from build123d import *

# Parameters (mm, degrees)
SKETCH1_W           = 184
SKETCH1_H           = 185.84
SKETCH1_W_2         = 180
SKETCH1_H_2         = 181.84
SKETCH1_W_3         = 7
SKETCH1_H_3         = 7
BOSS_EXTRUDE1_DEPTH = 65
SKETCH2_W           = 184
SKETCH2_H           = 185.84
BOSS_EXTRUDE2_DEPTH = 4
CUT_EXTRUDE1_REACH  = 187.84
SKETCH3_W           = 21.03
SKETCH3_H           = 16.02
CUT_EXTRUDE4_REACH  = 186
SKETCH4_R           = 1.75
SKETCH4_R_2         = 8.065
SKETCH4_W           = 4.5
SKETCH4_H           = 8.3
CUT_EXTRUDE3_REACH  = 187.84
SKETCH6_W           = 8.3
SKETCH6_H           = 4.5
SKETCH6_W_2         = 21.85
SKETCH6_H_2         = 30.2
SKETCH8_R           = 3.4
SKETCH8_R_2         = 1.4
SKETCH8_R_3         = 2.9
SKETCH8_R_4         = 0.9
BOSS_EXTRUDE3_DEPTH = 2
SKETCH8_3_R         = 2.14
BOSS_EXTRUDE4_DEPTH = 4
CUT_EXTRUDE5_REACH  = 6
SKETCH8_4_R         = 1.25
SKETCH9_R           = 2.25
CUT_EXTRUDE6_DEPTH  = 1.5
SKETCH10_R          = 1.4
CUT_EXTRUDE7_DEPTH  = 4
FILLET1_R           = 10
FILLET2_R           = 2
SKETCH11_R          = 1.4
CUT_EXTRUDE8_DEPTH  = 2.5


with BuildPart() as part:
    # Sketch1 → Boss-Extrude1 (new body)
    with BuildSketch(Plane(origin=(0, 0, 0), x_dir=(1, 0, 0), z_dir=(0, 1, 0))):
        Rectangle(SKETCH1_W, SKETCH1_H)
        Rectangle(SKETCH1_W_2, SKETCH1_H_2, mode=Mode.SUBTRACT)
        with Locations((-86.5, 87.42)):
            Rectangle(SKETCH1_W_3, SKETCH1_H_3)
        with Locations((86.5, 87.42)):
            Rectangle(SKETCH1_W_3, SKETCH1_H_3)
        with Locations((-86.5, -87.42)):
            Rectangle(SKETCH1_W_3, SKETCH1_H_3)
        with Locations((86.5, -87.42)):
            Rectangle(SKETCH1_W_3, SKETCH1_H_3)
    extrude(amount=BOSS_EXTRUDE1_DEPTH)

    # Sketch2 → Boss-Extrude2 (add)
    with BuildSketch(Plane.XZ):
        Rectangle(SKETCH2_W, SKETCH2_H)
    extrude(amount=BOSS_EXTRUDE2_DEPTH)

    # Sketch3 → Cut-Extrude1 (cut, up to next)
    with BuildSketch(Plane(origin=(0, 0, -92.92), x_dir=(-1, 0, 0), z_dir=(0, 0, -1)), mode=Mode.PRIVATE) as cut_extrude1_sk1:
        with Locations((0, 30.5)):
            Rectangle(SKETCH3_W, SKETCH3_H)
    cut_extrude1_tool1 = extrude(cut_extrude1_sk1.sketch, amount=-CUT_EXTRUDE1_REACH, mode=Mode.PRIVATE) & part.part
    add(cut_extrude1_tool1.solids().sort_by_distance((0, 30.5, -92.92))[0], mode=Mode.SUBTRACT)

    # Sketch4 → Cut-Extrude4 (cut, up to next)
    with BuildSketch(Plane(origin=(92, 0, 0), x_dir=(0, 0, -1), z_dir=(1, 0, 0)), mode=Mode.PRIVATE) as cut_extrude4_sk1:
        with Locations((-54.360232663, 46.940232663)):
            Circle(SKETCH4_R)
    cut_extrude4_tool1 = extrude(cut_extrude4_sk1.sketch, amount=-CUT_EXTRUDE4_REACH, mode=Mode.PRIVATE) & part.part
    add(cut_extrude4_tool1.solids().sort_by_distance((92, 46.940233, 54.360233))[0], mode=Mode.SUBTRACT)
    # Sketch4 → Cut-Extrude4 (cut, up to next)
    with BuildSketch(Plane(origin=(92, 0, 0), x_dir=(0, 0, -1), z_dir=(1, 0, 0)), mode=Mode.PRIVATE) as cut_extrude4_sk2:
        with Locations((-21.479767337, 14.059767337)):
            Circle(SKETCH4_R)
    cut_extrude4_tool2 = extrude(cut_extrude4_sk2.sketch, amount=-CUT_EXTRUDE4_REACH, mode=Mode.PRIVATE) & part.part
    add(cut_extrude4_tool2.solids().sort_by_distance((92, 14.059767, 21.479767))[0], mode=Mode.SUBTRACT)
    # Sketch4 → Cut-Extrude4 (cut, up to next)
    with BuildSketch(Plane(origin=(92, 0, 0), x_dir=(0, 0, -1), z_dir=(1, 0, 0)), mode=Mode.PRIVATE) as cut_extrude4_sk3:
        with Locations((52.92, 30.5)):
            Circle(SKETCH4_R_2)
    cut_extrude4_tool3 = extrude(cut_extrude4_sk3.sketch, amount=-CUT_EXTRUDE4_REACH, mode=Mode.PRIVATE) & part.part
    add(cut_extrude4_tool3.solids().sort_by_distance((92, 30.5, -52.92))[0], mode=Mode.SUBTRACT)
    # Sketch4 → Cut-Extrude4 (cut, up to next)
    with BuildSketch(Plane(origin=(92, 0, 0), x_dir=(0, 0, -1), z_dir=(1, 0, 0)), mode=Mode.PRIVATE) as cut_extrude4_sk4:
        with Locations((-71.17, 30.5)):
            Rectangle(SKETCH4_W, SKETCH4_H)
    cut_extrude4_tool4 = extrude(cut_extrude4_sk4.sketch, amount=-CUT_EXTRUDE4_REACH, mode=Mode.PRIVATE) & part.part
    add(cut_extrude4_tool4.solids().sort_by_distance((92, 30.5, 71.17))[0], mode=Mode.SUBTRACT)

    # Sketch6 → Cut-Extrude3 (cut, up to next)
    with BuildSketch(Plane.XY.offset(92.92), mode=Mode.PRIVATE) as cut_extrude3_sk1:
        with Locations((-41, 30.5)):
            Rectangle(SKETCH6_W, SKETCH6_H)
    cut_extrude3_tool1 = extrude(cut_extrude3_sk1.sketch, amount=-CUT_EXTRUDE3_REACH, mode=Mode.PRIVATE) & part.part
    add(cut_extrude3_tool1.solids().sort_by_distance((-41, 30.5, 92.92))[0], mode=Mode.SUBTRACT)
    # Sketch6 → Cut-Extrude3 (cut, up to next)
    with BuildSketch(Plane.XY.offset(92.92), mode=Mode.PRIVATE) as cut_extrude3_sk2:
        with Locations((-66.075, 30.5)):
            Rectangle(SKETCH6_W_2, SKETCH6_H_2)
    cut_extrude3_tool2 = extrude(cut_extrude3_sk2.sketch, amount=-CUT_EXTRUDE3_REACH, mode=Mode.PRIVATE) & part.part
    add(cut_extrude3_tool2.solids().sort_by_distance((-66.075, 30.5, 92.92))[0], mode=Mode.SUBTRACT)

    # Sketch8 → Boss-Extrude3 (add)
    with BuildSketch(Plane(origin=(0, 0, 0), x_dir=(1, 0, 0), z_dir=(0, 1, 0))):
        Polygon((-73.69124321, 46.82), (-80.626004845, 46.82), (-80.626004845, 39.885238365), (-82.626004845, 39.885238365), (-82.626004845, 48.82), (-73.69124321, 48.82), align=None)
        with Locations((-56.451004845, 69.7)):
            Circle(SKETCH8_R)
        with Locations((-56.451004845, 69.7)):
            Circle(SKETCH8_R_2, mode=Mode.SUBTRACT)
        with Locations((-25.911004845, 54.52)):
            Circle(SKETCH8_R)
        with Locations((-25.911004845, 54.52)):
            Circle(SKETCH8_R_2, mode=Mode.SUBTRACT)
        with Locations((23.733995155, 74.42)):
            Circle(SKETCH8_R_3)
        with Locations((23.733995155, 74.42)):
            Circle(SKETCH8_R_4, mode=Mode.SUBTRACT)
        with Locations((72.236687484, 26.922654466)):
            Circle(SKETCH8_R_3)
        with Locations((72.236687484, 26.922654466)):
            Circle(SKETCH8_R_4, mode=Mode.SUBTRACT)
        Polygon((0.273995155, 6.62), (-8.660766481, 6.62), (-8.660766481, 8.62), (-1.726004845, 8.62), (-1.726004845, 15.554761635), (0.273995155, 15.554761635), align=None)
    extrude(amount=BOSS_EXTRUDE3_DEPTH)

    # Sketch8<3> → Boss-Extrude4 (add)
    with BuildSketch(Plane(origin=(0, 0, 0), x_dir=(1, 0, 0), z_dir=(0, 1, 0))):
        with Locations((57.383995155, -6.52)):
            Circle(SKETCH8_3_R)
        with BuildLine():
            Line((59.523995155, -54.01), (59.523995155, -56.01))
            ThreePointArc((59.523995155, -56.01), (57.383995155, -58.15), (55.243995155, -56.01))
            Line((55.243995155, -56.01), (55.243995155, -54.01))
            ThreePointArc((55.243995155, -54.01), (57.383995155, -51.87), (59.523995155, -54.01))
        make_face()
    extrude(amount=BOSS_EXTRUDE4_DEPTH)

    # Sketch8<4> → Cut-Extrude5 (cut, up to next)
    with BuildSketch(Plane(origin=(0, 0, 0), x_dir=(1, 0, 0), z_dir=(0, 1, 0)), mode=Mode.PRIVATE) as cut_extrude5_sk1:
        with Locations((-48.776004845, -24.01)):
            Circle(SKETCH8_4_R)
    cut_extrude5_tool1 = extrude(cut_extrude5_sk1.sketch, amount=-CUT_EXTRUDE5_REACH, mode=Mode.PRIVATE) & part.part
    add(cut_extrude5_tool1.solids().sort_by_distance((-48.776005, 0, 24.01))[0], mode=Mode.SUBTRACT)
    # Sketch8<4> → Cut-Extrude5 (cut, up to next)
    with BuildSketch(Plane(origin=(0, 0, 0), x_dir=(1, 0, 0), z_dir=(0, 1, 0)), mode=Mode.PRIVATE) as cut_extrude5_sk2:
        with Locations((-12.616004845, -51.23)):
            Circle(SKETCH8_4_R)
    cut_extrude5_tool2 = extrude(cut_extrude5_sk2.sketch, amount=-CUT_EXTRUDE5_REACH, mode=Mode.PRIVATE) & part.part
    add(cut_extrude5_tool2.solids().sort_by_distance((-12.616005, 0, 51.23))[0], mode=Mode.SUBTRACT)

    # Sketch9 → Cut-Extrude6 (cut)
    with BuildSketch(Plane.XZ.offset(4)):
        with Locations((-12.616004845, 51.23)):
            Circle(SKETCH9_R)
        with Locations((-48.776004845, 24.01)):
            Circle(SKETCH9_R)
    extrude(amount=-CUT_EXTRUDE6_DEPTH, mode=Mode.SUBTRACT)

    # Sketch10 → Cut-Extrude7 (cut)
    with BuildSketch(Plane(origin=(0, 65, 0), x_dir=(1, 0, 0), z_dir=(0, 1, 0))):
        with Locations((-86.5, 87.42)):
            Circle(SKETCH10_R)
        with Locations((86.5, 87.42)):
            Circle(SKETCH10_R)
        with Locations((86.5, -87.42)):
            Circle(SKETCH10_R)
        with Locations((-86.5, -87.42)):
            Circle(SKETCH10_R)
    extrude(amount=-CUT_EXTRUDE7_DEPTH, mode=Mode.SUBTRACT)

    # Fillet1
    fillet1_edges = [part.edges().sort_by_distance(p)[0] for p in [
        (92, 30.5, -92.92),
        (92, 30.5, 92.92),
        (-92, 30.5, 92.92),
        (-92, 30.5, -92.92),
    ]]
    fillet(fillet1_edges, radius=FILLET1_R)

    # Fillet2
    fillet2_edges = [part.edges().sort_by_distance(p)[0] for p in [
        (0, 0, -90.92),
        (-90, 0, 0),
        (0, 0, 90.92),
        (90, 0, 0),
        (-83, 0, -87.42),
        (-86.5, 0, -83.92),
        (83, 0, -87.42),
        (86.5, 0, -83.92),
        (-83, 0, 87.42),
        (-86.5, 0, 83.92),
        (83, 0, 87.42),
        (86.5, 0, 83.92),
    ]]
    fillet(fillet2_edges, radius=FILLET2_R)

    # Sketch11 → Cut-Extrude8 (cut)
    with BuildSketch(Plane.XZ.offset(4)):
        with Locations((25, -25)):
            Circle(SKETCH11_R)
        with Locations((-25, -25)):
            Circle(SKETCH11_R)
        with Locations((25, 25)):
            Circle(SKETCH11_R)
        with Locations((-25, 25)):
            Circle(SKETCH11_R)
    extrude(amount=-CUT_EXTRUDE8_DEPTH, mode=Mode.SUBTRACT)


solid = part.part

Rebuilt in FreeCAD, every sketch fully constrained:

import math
import FreeCAD as App
import Part
import Sketcher

V = App.Vector


def edges_at(feature, points):
    """Names of the edges that pass closest to the given points."""
    edges = feature.Shape.Edges
    near = lambda p: min(range(len(edges)), key=lambda i: edges[i].distToShape(Part.Vertex(*p))[0])
    return sorted({f"Edge{near(p) + 1}" for p in points})


def add_polygon(sketch, points):
    """Adds a closed chain of lines whose ends are joined by coincident constraints."""
    first, n = sketch.GeometryCount, len(points)
    for a, b in zip(points, points[1:] + points[:1]):
        sketch.addGeometry(Part.LineSegment(App.Vector(*a, 0), App.Vector(*b, 0)), False)
    for i in range(n):
        sketch.addConstraint(Sketcher.Constraint("Coincident", first + i, 2, first + (i + 1) % n, 1))

doc = App.newDocument("Part")
body = doc.addObject("PartDesign::Body", "Body")

sketch1 = doc.addObject("Sketcher::SketchObject", "Sketch")
body.addObject(sketch1)
sketch1.AttachmentSupport = (doc.XZ_Plane, [""])
sketch1.MapMode = "FlatFace"
add_polygon(sketch1, [(-92, -93), (-92, 93), (92, 93), (92, -93)])
add_polygon(sketch1, [(83, 91), (-83, 91), (-83, 84), (-90, 84), (-90, -84), (-83, -84), (-83, -91), (83, -91), (83, -84), (90, -84), (90, 84), (83, 84)])
sketch1.addConstraint(Sketcher.Constraint("Vertical", 0))
sketch1.addConstraint(Sketcher.Constraint("Horizontal", 1))
sketch1.addConstraint(Sketcher.Constraint("Vertical", 2))
sketch1.addConstraint(Sketcher.Constraint("Horizontal", 3))
sketch1.addConstraint(Sketcher.Constraint("Horizontal", 4))
sketch1.addConstraint(Sketcher.Constraint("Vertical", 5))
sketch1.addConstraint(Sketcher.Constraint("Horizontal", 6))
sketch1.addConstraint(Sketcher.Constraint("Vertical", 7))
sketch1.addConstraint(Sketcher.Constraint("Horizontal", 8))
sketch1.addConstraint(Sketcher.Constraint("Vertical", 9))
sketch1.addConstraint(Sketcher.Constraint("Horizontal", 10))
sketch1.addConstraint(Sketcher.Constraint("Vertical", 11))
sketch1.addConstraint(Sketcher.Constraint("Horizontal", 12))
sketch1.addConstraint(Sketcher.Constraint("Vertical", 13))
sketch1.addConstraint(Sketcher.Constraint("Horizontal", 14))
sketch1.addConstraint(Sketcher.Constraint("Vertical", 15))
sketch1.addConstraint(Sketcher.Constraint("Symmetric", 0, 2, 2, 2, -1, 1))
sketch1.addConstraint(Sketcher.Constraint("Symmetric", 4, 2, 10, 2, -1, 1))
sketch1.addConstraint(Sketcher.Constraint("Symmetric", 6, 2, 12, 2, -1, 1))
sketch1.addConstraint(Sketcher.Constraint("Symmetric", 8, 2, 14, 2, -1, 1))
sketch1.addConstraint(Sketcher.Constraint("Symmetric", 8, 2, 11, 2, -2))
sketch1.addConstraint(Sketcher.Constraint("Equal", 14, 5))
sketch1.addConstraint(Sketcher.Constraint("DistanceX", 1, 1, 1, 2, 184.0))
sketch1.addConstraint(Sketcher.Constraint("DistanceX", 4, 2, 4, 1, 166.0))
sketch1.addConstraint(Sketcher.Constraint("DistanceX", 6, 2, 6, 1, 7.0))
sketch1.addConstraint(Sketcher.Constraint("DistanceY", 4, 2, 0, 2, 2.0))
sketch1.addConstraint(Sketcher.Constraint("DistanceY", 0, 1, 0, 2, 185.84))
pad1 = doc.addObject("PartDesign::Pad", "Pad")
body.addObject(pad1)
pad1.Profile = sketch1
pad1.Length = 65
pad1.Reversed = True

sketch2 = doc.addObject("Sketcher::SketchObject", "Sketch001")
body.addObject(sketch2)
sketch2.AttachmentSupport = (doc.XZ_Plane, [""])
sketch2.MapMode = "FlatFace"
add_polygon(sketch2, [(-92, 93), (-92, -93), (92, -93), (92, 93)])
sketch2.addConstraint(Sketcher.Constraint("Vertical", 0))
sketch2.addConstraint(Sketcher.Constraint("Horizontal", 1))
sketch2.addConstraint(Sketcher.Constraint("Vertical", 2))
sketch2.addConstraint(Sketcher.Constraint("Horizontal", 3))
sketch2.addConstraint(Sketcher.Constraint("Symmetric", 0, 2, 2, 2, -1, 1))
sketch2.addConstraint(Sketcher.Constraint("DistanceX", 1, 1, 1, 2, 184.0))
sketch2.addConstraint(Sketcher.Constraint("DistanceY", 0, 2, 0, 1, 185.84))
pad2 = doc.addObject("PartDesign::Pad", "Pad001")
body.addObject(pad2)
pad2.Profile = sketch2
pad2.Length = 4

sketch3 = doc.addObject("Sketcher::SketchObject", "Sketch002")
body.addObject(sketch3)
sketch3.AttachmentSupport = (doc.XY_Plane, [""])
sketch3.MapMode = "FlatFace"
sketch3.AttachmentOffset = App.Placement(V(0, 0, -92.92), App.Rotation())
add_polygon(sketch3, [(11, 39), (11, 22), (-11, 22), (-11, 39)])
sketch3.addConstraint(Sketcher.Constraint("Vertical", 0))
sketch3.addConstraint(Sketcher.Constraint("Horizontal", 1))
sketch3.addConstraint(Sketcher.Constraint("Vertical", 2))
sketch3.addConstraint(Sketcher.Constraint("Horizontal", 3))
sketch3.addConstraint(Sketcher.Constraint("DistanceX", 1, 2, 1, 1, 21.03))
sketch3.addConstraint(Sketcher.Constraint("DistanceY", 0, 2, 0, 1, 16.02))
sketch3.addConstraint(Sketcher.Constraint("DistanceY", -1, 1, 0, 2, 22.49))
sketch3.addConstraint(Sketcher.Constraint("DistanceX", -1, 1, 0, 2, 10.515))
pocket1 = doc.addObject("PartDesign::Pocket", "Pocket")
body.addObject(pocket1)
pocket1.Profile = sketch3
pocket1.Type = "UpToFirst"
pocket1.Reversed = True

sketch4 = doc.addObject("Sketcher::SketchObject", "Sketch003")
body.addObject(sketch4)
sketch4.AttachmentSupport = (doc.YZ_Plane, [""])
sketch4.MapMode = "FlatFace"
sketch4.AttachmentOffset = App.Placement(V(0, 0, 92), App.Rotation())
sketch4.addGeometry(Part.Circle(V(46.9, 54.4, 0), V(0, 0, 1), 1.8), False)
sketch4.addConstraint(Sketcher.Constraint("Diameter", 0, 3.5))
sketch4.addConstraint(Sketcher.Constraint("DistanceX", -1, 1, 0, 3, 46.940233))
sketch4.addConstraint(Sketcher.Constraint("DistanceY", -1, 1, 0, 3, 54.360233))
pocket2 = doc.addObject("PartDesign::Pocket", "Pocket001")
body.addObject(pocket2)
pocket2.Profile = sketch4
pocket2.Type = "UpToFirst"

sketch5 = doc.addObject("Sketcher::SketchObject", "Sketch004")
body.addObject(sketch5)
sketch5.AttachmentSupport = (doc.YZ_Plane, [""])
sketch5.MapMode = "FlatFace"
sketch5.AttachmentOffset = App.Placement(V(0, 0, 92), App.Rotation())
sketch5.addGeometry(Part.Circle(V(14.1, 21.5, 0), V(0, 0, 1), 1.8), False)
sketch5.addConstraint(Sketcher.Constraint("Diameter", 0, 3.5))
sketch5.addConstraint(Sketcher.Constraint("DistanceX", -1, 1, 0, 3, 14.059767))
sketch5.addConstraint(Sketcher.Constraint("DistanceY", -1, 1, 0, 3, 21.479767))
pocket3 = doc.addObject("PartDesign::Pocket", "Pocket002")
body.addObject(pocket3)
pocket3.Profile = sketch5
pocket3.Type = "UpToFirst"

sketch6 = doc.addObject("Sketcher::SketchObject", "Sketch005")
body.addObject(sketch6)
sketch6.AttachmentSupport = (doc.YZ_Plane, [""])
sketch6.MapMode = "FlatFace"
sketch6.AttachmentOffset = App.Placement(V(0, 0, 92), App.Rotation())
sketch6.addGeometry(Part.Circle(V(30, -53, 0), V(0, 0, 1), 8), False)
sketch6.addConstraint(Sketcher.Constraint("Diameter", 0, 16.13))
sketch6.addConstraint(Sketcher.Constraint("DistanceX", -1, 1, 0, 3, 30.5))
sketch6.addConstraint(Sketcher.Constraint("DistanceY", 0, 3, -1, 1, 52.92))
pocket4 = doc.addObject("PartDesign::Pocket", "Pocket003")
body.addObject(pocket4)
pocket4.Profile = sketch6
pocket4.Type = "UpToFirst"

sketch7 = doc.addObject("Sketcher::SketchObject", "Sketch006")
body.addObject(sketch7)
sketch7.AttachmentSupport = (doc.YZ_Plane, [""])
sketch7.MapMode = "FlatFace"
sketch7.AttachmentOffset = App.Placement(V(0, 0, 92), App.Rotation())
add_polygon(sketch7, [(34.6, 73.4), (26.4, 73.4), (26.4, 68.9), (34.6, 68.9)])
sketch7.addConstraint(Sketcher.Constraint("Horizontal", 0))
sketch7.addConstraint(Sketcher.Constraint("Vertical", 1))
sketch7.addConstraint(Sketcher.Constraint("Horizontal", 2))
sketch7.addConstraint(Sketcher.Constraint("Vertical", 3))
sketch7.addConstraint(Sketcher.Constraint("DistanceX", 0, 2, 0, 1, 8.3))
sketch7.addConstraint(Sketcher.Constraint("DistanceY", 1, 2, 1, 1, 4.5))
sketch7.addConstraint(Sketcher.Constraint("DistanceX", -1, 1, 0, 2, 26.35))
sketch7.addConstraint(Sketcher.Constraint("DistanceY", -1, 1, 0, 2, 73.42))
pocket5 = doc.addObject("PartDesign::Pocket", "Pocket004")
body.addObject(pocket5)
pocket5.Profile = sketch7
pocket5.Type = "UpToFirst"

sketch8 = doc.addObject("Sketcher::SketchObject", "Sketch007")
body.addObject(sketch8)
sketch8.AttachmentSupport = (doc.XY_Plane, [""])
sketch8.MapMode = "FlatFace"
sketch8.AttachmentOffset = App.Placement(V(0, 0, 92.92), App.Rotation())
add_polygon(sketch8, [(-45.1, 32.8), (-45.1, 28.2), (-36.9, 28.2), (-36.9, 32.8)])
sketch8.addConstraint(Sketcher.Constraint("Vertical", 0))
sketch8.addConstraint(Sketcher.Constraint("Horizontal", 1))
sketch8.addConstraint(Sketcher.Constraint("Vertical", 2))
sketch8.addConstraint(Sketcher.Constraint("Horizontal", 3))
sketch8.addConstraint(Sketcher.Constraint("DistanceX", 1, 1, 1, 2, 8.3))
sketch8.addConstraint(Sketcher.Constraint("DistanceY", 0, 2, 0, 1, 4.5))
sketch8.addConstraint(Sketcher.Constraint("DistanceX", 0, 2, -1, 1, 45.15))
sketch8.addConstraint(Sketcher.Constraint("DistanceY", -1, 1, 0, 2, 28.25))
pocket6 = doc.addObject("PartDesign::Pocket", "Pocket005")
body.addObject(pocket6)
pocket6.Profile = sketch8
pocket6.Type = "UpToFirst"

sketch9 = doc.addObject("Sketcher::SketchObject", "Sketch008")
body.addObject(sketch9)
sketch9.AttachmentSupport = (doc.XY_Plane, [""])
sketch9.MapMode = "FlatFace"
sketch9.AttachmentOffset = App.Placement(V(0, 0, 92.92), App.Rotation())
add_polygon(sketch9, [(-77, 46), (-77, 15), (-55, 15), (-55, 46)])
sketch9.addConstraint(Sketcher.Constraint("Vertical", 0))
sketch9.addConstraint(Sketcher.Constraint("Horizontal", 1))
sketch9.addConstraint(Sketcher.Constraint("Vertical", 2))
sketch9.addConstraint(Sketcher.Constraint("Horizontal", 3))
sketch9.addConstraint(Sketcher.Constraint("DistanceY", 0, 2, 0, 1, 30.2))
sketch9.addConstraint(Sketcher.Constraint("DistanceX", 0, 2, -1, 1, 77.0))
sketch9.addConstraint(Sketcher.Constraint("DistanceX", 1, 1, 1, 2, 21.85))
sketch9.addConstraint(Sketcher.Constraint("DistanceY", -1, 1, 0, 2, 15.4))
pocket7 = doc.addObject("PartDesign::Pocket", "Pocket006")
body.addObject(pocket7)
pocket7.Profile = sketch9
pocket7.Type = "UpToFirst"

sketch10 = doc.addObject("Sketcher::SketchObject", "Sketch009")
body.addObject(sketch10)
sketch10.AttachmentSupport = (doc.XZ_Plane, [""])
sketch10.MapMode = "FlatFace"
add_polygon(sketch10, [(-80.6, -46.8), (-73.7, -46.8), (-73.7, -48.8), (-82.6, -48.8), (-82.6, -39.9), (-80.6, -39.9)])
sketch10.addGeometry(Part.Circle(V(-56.5, -69.7, 0), V(0, 0, 1), 3.4), False)
sketch10.addGeometry(Part.Circle(V(-56.5, -69.7, 0), V(0, 0, 1), 1.4), False)
sketch10.addGeometry(Part.Circle(V(-25.9, -54.5, 0), V(0, 0, 1), 3.4), False)
sketch10.addGeometry(Part.Circle(V(-25.9, -54.5, 0), V(0, 0, 1), 1.4), False)
sketch10.addGeometry(Part.Circle(V(23.7, -74.4, 0), V(0, 0, 1), 2.9), False)
sketch10.addGeometry(Part.Circle(V(23.7, -74.4, 0), V(0, 0, 1), 0.9), False)
sketch10.addGeometry(Part.Circle(V(72.2, -26.9, 0), V(0, 0, 1), 2.9), False)
sketch10.addGeometry(Part.Circle(V(72.2, -26.9, 0), V(0, 0, 1), 0.9), False)
add_polygon(sketch10, [(-8.7, -6.6), (0.3, -6.6), (0.3, -15.6), (-1.7, -15.6), (-1.7, -8.6), (-8.7, -8.6)])
sketch10.addConstraint(Sketcher.Constraint("Horizontal", 0))
sketch10.addConstraint(Sketcher.Constraint("Vertical", 1))
sketch10.addConstraint(Sketcher.Constraint("Horizontal", 2))
sketch10.addConstraint(Sketcher.Constraint("Vertical", 3))
sketch10.addConstraint(Sketcher.Constraint("Horizontal", 4))
sketch10.addConstraint(Sketcher.Constraint("Vertical", 5))
sketch10.addConstraint(Sketcher.Constraint("Horizontal", 14))
sketch10.addConstraint(Sketcher.Constraint("Vertical", 15))
sketch10.addConstraint(Sketcher.Constraint("Horizontal", 16))
sketch10.addConstraint(Sketcher.Constraint("Vertical", 17))
sketch10.addConstraint(Sketcher.Constraint("Horizontal", 18))
sketch10.addConstraint(Sketcher.Constraint("Vertical", 19))
sketch10.addConstraint(Sketcher.Constraint("Coincident", 7, 3, 6, 3))
sketch10.addConstraint(Sketcher.Constraint("Coincident", 9, 3, 8, 3))
sketch10.addConstraint(Sketcher.Constraint("Coincident", 11, 3, 10, 3))
sketch10.addConstraint(Sketcher.Constraint("Coincident", 13, 3, 12, 3))
sketch10.addConstraint(Sketcher.Constraint("Equal", 6, 8))
sketch10.addConstraint(Sketcher.Constraint("Equal", 7, 9))
sketch10.addConstraint(Sketcher.Constraint("Equal", 10, 12))
sketch10.addConstraint(Sketcher.Constraint("Equal", 11, 13))
sketch10.addConstraint(Sketcher.Constraint("Equal", 2, 14))
sketch10.addConstraint(Sketcher.Constraint("Equal", 4, 16))
sketch10.addConstraint(Sketcher.Constraint("Equal", 16, 1))
sketch10.addConstraint(Sketcher.Constraint("Equal", 14, 3))
sketch10.addConstraint(Sketcher.Constraint("Equal", 3, 15))
sketch10.addConstraint(Sketcher.Constraint("Equal", 5, 17))
sketch10.addConstraint(Sketcher.Constraint("Diameter", 6, 6.8))
sketch10.addConstraint(Sketcher.Constraint("Diameter", 7, 2.8))
sketch10.addConstraint(Sketcher.Constraint("Diameter", 10, 5.8))
sketch10.addConstraint(Sketcher.Constraint("Diameter", 11, 1.8))
sketch10.addConstraint(Sketcher.Constraint("DistanceX", 4, 1, 4, 2, 2.0))
sketch10.addConstraint(Sketcher.Constraint("DistanceY", 6, 3, -1, 1, 69.7))
sketch10.addConstraint(Sketcher.Constraint("DistanceY", 10, 3, 8, 3, 19.9))
sketch10.addConstraint(Sketcher.Constraint("DistanceY", 8, 3, 0, 2, 7.7))
sketch10.addConstraint(Sketcher.Constraint("DistanceY", 8, 3, 14, 2, 47.9))
sketch10.addConstraint(Sketcher.Constraint("DistanceY", 8, 3, -1, 1, 54.52))
sketch10.addConstraint(Sketcher.Constraint("DistanceX", 6, 3, 8, 3, 30.54))
sketch10.addConstraint(Sketcher.Constraint("DistanceX", 14, 2, 10, 3, 23.46))
sketch10.addConstraint(Sketcher.Constraint("DistanceX", 8, 3, 10, 3, 49.645))
sketch10.addConstraint(Sketcher.Constraint("DistanceX", 2, 2, 6, 3, 26.175))
sketch10.addConstraint(Sketcher.Constraint("DistanceX", 0, 1, 0, 2, 6.934762))
sketch10.addConstraint(Sketcher.Constraint("DistanceX", 6, 3, -1, 1, 56.451005))
sketch10.addConstraint(Sketcher.Constraint("DistanceX", -1, 1, 12, 3, 72.236687))
sketch10.addConstraint(Sketcher.Constraint("DistanceY", 12, 3, -1, 1, 26.922654))
pad3 = doc.addObject("PartDesign::Pad", "Pad002")
body.addObject(pad3)
pad3.Profile = sketch10
pad3.Length = 2
pad3.Reversed = True

sketch11 = doc.addObject("Sketcher::SketchObject", "Sketch010")
body.addObject(sketch11)
sketch11.AttachmentSupport = (doc.XZ_Plane, [""])
sketch11.MapMode = "FlatFace"
sketch11.addGeometry(Part.Circle(V(57.4, 6.5, 0), V(0, 0, 1), 2.1), False)
sketch11.addGeometry(Part.LineSegment(V(59.5, 56, 0), V(59.5, 54, 0)), False)
sketch11.addGeometry(Part.ArcOfCircle(Part.Circle(V(57.4, 54, 0), V(0, 0, 1), 2.1), math.radians(180), math.radians(360)), False)
sketch11.addGeometry(Part.LineSegment(V(55.2, 54, 0), V(55.2, 56, 0)), False)
sketch11.addGeometry(Part.ArcOfCircle(Part.Circle(V(57.4, 56, 0), V(0, 0, 1), 2.1), math.radians(0), math.radians(180)), False)
sketch11.addConstraint(Sketcher.Constraint("Tangent", 1, 2, 2, 2))
sketch11.addConstraint(Sketcher.Constraint("Tangent", 2, 1, 3, 1))
sketch11.addConstraint(Sketcher.Constraint("Tangent", 3, 2, 4, 2))
sketch11.addConstraint(Sketcher.Constraint("Tangent", 4, 1, 1, 1))
sketch11.addConstraint(Sketcher.Constraint("Vertical", 1))
sketch11.addConstraint(Sketcher.Constraint("Vertical", 3))
sketch11.addConstraint(Sketcher.Constraint("Equal", 0, 2))
sketch11.addConstraint(Sketcher.Constraint("Vertical", 0, 3, 2, 3))
sketch11.addConstraint(Sketcher.Constraint("Diameter", 0, 4.28))
sketch11.addConstraint(Sketcher.Constraint("DistanceY", 1, 2, 1, 1, 2.0))
sketch11.addConstraint(Sketcher.Constraint("DistanceY", -1, 1, 0, 3, 6.52))
sketch11.addConstraint(Sketcher.Constraint("DistanceY", -1, 1, 2, 3, 54.01))
sketch11.addConstraint(Sketcher.Constraint("DistanceX", -1, 1, 0, 3, 57.383995))
pad4 = doc.addObject("PartDesign::Pad", "Pad003")
body.addObject(pad4)
pad4.Profile = sketch11
pad4.Length = 4
pad4.Reversed = True

sketch12 = doc.addObject("Sketcher::SketchObject", "Sketch011")
body.addObject(sketch12)
sketch12.AttachmentSupport = (doc.XZ_Plane, [""])
sketch12.MapMode = "FlatFace"
sketch12.addGeometry(Part.Circle(V(-48.8, 24, 0), V(0, 0, 1), 1.2), False)
sketch12.addConstraint(Sketcher.Constraint("Diameter", 0, 2.5))
sketch12.addConstraint(Sketcher.Constraint("DistanceY", -1, 1, 0, 3, 24.01))
sketch12.addConstraint(Sketcher.Constraint("DistanceX", 0, 3, -1, 1, 48.776005))
pocket8 = doc.addObject("PartDesign::Pocket", "Pocket007")
body.addObject(pocket8)
pocket8.Profile = sketch12
pocket8.Type = "UpToFirst"
pocket8.Reversed = True

sketch13 = doc.addObject("Sketcher::SketchObject", "Sketch012")
body.addObject(sketch13)
sketch13.AttachmentSupport = (doc.XZ_Plane, [""])
sketch13.MapMode = "FlatFace"
sketch13.addGeometry(Part.Circle(V(-12.6, 51.2, 0), V(0, 0, 1), 1.2), False)
sketch13.addConstraint(Sketcher.Constraint("Diameter", 0, 2.5))
sketch13.addConstraint(Sketcher.Constraint("DistanceY", -1, 1, 0, 3, 51.23))
sketch13.addConstraint(Sketcher.Constraint("DistanceX", 0, 3, -1, 1, 12.616005))
pocket9 = doc.addObject("PartDesign::Pocket", "Pocket008")
body.addObject(pocket9)
pocket9.Profile = sketch13
pocket9.Type = "UpToFirst"
pocket9.Reversed = True

sketch14 = doc.addObject("Sketcher::SketchObject", "Sketch013")
body.addObject(sketch14)
sketch14.AttachmentSupport = (doc.XZ_Plane, [""])
sketch14.MapMode = "FlatFace"
sketch14.AttachmentOffset = App.Placement(V(0, 0, 4), App.Rotation())
sketch14.addGeometry(Part.Circle(V(-12.6, 51.2, 0), V(0, 0, 1), 2.2), False)
sketch14.addGeometry(Part.Circle(V(-48.8, 24, 0), V(0, 0, 1), 2.2), False)
sketch14.addConstraint(Sketcher.Constraint("Equal", 0, 1))
sketch14.addConstraint(Sketcher.Constraint("Diameter", 0, 4.5))
sketch14.addConstraint(Sketcher.Constraint("DistanceY", -1, 1, 0, 3, 51.23))
sketch14.addConstraint(Sketcher.Constraint("DistanceY", -1, 1, 1, 3, 24.01))
sketch14.addConstraint(Sketcher.Constraint("DistanceX", 1, 3, 0, 3, 36.16))
sketch14.addConstraint(Sketcher.Constraint("DistanceX", 0, 3, -1, 1, 12.616005))
pocket10 = doc.addObject("PartDesign::Pocket", "Pocket009")
body.addObject(pocket10)
pocket10.Profile = sketch14
pocket10.Length = 1.5

sketch15 = doc.addObject("Sketcher::SketchObject", "Sketch014")
body.addObject(sketch15)
sketch15.AttachmentSupport = (doc.XZ_Plane, [""])
sketch15.MapMode = "FlatFace"
sketch15.AttachmentOffset = App.Placement(V(0, 0, -65), App.Rotation())
sketch15.addGeometry(Part.Circle(V(-86.5, -87.4, 0), V(0, 0, 1), 1.4), False)
sketch15.addGeometry(Part.Circle(V(86.5, -87.4, 0), V(0, 0, 1), 1.4), False)
sketch15.addGeometry(Part.Circle(V(86.5, 87.4, 0), V(0, 0, 1), 1.4), False)
sketch15.addGeometry(Part.Circle(V(-86.5, 87.4, 0), V(0, 0, 1), 1.4), False)
sketch15.addConstraint(Sketcher.Constraint("Equal", 0, 1))
sketch15.addConstraint(Sketcher.Constraint("Equal", 1, 2))
sketch15.addConstraint(Sketcher.Constraint("Equal", 2, 3))
sketch15.addConstraint(Sketcher.Constraint("Symmetric", 0, 3, 2, 3, -1, 1))
sketch15.addConstraint(Sketcher.Constraint("Symmetric", 1, 3, 3, 3, -1, 1))
sketch15.addConstraint(Sketcher.Constraint("Symmetric", 0, 3, 1, 3, -2))
sketch15.addConstraint(Sketcher.Constraint("Diameter", 0, 2.8))
sketch15.addConstraint(Sketcher.Constraint("DistanceX", 0, 3, 1, 3, 173.0))
sketch15.addConstraint(Sketcher.Constraint("DistanceY", 0, 3, -1, 1, 87.42))
pocket11 = doc.addObject("PartDesign::Pocket", "Pocket010")
body.addObject(pocket11)
pocket11.Profile = sketch15
pocket11.Length = 4
pocket11.Reversed = True
doc.recompute()

fillet = doc.addObject("PartDesign::Fillet", "Fillet")
body.addObject(fillet)
fillet.Base = (pocket11, edges_at(pocket11, [
    (92, 30.5, -92.92),
    (92, 30.5, 92.92),
    (-92, 30.5, 92.92),
    (-92, 30.5, -92.92),
]))
fillet.Radius = 10
doc.recompute()

fillet2 = doc.addObject("PartDesign::Fillet", "Fillet001")
body.addObject(fillet2)
fillet2.Base = (fillet, edges_at(fillet, [
    (0, 0, -90.92),
    (-90, 0, 0),
    (0, 0, 90.92),
    (90, 0, 0),
    (-83, 0, -87.42),
    (-86.5, 0, -83.92),
    (83, 0, -87.42),
    (86.5, 0, -83.92),
    (-83, 0, 87.42),
    (-86.5, 0, 83.92),
    (83, 0, 87.42),
    (86.5, 0, 83.92),
]))
fillet2.Radius = 2

sketch16 = doc.addObject("Sketcher::SketchObject", "Sketch015")
body.addObject(sketch16)
sketch16.AttachmentSupport = (doc.XZ_Plane, [""])
sketch16.MapMode = "FlatFace"
sketch16.AttachmentOffset = App.Placement(V(0, 0, 4), App.Rotation())
sketch16.addGeometry(Part.Circle(V(25, -25, 0), V(0, 0, 1), 1.4), False)
sketch16.addGeometry(Part.Circle(V(-25, -25, 0), V(0, 0, 1), 1.4), False)
sketch16.addGeometry(Part.Circle(V(25, 25, 0), V(0, 0, 1), 1.4), False)
sketch16.addGeometry(Part.Circle(V(-25, 25, 0), V(0, 0, 1), 1.4), False)
sketch16.addConstraint(Sketcher.Constraint("Equal", 0, 1))
sketch16.addConstraint(Sketcher.Constraint("Equal", 1, 2))
sketch16.addConstraint(Sketcher.Constraint("Equal", 2, 3))
sketch16.addConstraint(Sketcher.Constraint("Symmetric", 1, 3, 2, 3, -1, 1))
sketch16.addConstraint(Sketcher.Constraint("Symmetric", 0, 3, 3, 3, -1, 1))
sketch16.addConstraint(Sketcher.Constraint("Symmetric", 0, 3, 1, 3, -2))
sketch16.addConstraint(Sketcher.Constraint("Diameter", 0, 2.8))
sketch16.addConstraint(Sketcher.Constraint("DistanceX", -1, 1, 0, 3, 25.0))
sketch16.addConstraint(Sketcher.Constraint("DistanceY", 0, 3, -1, 1, 25.0))
pocket12 = doc.addObject("PartDesign::Pocket", "Pocket011")
body.addObject(pocket12)
pocket12.Profile = sketch16
pocket12.Length = 2.5

doc.recompute()
